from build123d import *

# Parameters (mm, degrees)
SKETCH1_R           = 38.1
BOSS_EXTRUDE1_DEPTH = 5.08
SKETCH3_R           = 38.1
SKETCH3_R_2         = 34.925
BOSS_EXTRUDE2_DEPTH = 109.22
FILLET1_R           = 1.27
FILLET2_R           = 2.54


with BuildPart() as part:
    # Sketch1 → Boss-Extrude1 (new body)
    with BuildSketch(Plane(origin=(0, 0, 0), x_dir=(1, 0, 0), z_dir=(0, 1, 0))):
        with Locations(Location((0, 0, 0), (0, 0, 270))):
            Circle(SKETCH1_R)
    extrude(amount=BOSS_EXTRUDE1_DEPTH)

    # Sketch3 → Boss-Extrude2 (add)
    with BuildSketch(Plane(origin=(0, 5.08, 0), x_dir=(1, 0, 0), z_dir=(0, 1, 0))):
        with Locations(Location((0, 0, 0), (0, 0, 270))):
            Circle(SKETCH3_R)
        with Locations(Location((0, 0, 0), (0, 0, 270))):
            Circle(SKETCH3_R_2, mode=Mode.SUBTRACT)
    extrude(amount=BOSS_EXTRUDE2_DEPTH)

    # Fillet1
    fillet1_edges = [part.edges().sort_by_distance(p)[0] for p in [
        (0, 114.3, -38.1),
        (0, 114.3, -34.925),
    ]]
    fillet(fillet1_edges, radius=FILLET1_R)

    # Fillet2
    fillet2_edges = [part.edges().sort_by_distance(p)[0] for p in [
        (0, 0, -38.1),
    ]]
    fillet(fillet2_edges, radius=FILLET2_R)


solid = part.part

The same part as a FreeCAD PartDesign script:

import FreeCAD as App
import Part
import Sketcher
from FreeCAD import Vector
Q = App.Units.Quantity


def edges_at(feature, points):
    """Names of the edges that pass closest to the given points."""
    edges = feature.Shape.Edges
    near = lambda p: min(range(len(edges)), key=lambda i: edges[i].distToShape(Part.Vertex(*p))[0])
    return sorted({f"Edge{near(p) + 1}" for p in points})

doc = App.newDocument("Part")
body = doc.addObject("PartDesign::Body", "Body")

# Sketch on XZ plane
sketch1 = body.newObject("Sketcher::SketchObject", "Sketch")
sketch1.AttachmentSupport = (doc.getObject("XZ_Plane"), [""])
sketch1.MapMode = "FlatFace"
sketch1.addGeometry(Part.Circle(Vector(0, 0, 0), Vector(0, 0, 1), 38.1), False)
sketch1.addConstraint(Sketcher.Constraint("Coincident", 0, 3, -1, 1))
sketch1.addConstraint(Sketcher.Constraint("Diameter", 0, Q("3 in")))
pad1 = body.newObject("PartDesign::Pad", "Pad")
pad1.Profile = sketch1
pad1.Length = Q("0.2 in")
pad1.Reversed = True

# Sketch on XZ plane
sketch2 = body.newObject("Sketcher::SketchObject", "Sketch001")
sketch2.AttachmentSupport = (doc.getObject("XZ_Plane"), [""])
sketch2.MapMode = "FlatFace"
sketch2.AttachmentOffset = App.Placement(Vector(0, 0, -0.2 * 25.4), App.Rotation())
sketch2.addGeometry(Part.Circle(Vector(0, 0, 0), Vector(0, 0, 1), 38.1), False)
sketch2.addGeometry(Part.Circle(Vector(0, 0, 0), Vector(0, 0, 1), 34.925), False)
sketch2.addConstraint(Sketcher.Constraint("Coincident", 0, 3, -1, 1))
sketch2.addConstraint(Sketcher.Constraint("Coincident", 1, 3, -1, 1))
sketch2.addConstraint(Sketcher.Constraint("Diameter", 0, Q("3 in")))
sketch2.addConstraint(Sketcher.Constraint("Diameter", 1, Q("2.75 in")))
pad2 = body.newObject("PartDesign::Pad", "Pad001")
pad2.Profile = sketch2
pad2.Length = Q("4.3 in")
pad2.Reversed = True
doc.recompute()

fillet = body.newObject("PartDesign::Fillet", "Fillet")
fillet.Base = (pad2, edges_at(pad2, [(0, 114.3, -38.1), (0, 114.3, -34.925)]))
fillet.Radius = Q("0.05 in")
doc.recompute()

fillet2 = body.newObject("PartDesign::Fillet", "Fillet001")
fillet2.Base = (fillet, edges_at(fillet, [(0, 0, -38.1)]))
fillet2.Radius = Q("0.1 in")

doc.recompute()
